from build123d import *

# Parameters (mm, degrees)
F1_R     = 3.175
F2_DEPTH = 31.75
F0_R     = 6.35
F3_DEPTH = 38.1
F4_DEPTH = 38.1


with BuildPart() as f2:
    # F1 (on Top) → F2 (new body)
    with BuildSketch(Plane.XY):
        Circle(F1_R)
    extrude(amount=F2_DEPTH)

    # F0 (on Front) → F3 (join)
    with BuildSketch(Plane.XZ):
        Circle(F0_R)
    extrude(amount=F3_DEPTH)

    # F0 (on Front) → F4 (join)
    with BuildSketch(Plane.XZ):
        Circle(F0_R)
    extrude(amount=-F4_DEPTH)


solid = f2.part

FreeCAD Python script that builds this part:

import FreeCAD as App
import Part
import Sketcher
from FreeCAD import Vector
Q = App.Units.Quantity

doc = App.newDocument("Part")
body = doc.addObject("PartDesign::Body", "Body")

sketch1 = doc.addObject("Sketcher::SketchObject", "Sketch")
body.addObject(sketch1)
sketch1.AttachmentSupport = (doc.XY_Plane, [""])
sketch1.MapMode = "FlatFace"
sketch1.addGeometry(Part.Circle(Vector(0, 0, 0), Vector(0, 0, 1), 3.2), False)
sketch1.addConstraint([
    Sketcher.Constraint("Coincident", 0, 3, -1, 1),
    Sketcher.Constraint("Diameter", 0, Q("0.25 in")),
])
pad1 = doc.addObject("PartDesign::Pad", "Pad")
body.addObject(pad1)
pad1.Profile = sketch1
pad1.Length = Q("1.25 in")

sketch2 = doc.addObject("Sketcher::SketchObject", "Sketch001")
body.addObject(sketch2)
sketch2.AttachmentSupport = (doc.XZ_Plane, [""])
sketch2.MapMode = "FlatFace"
sketch2.addGeometry(Part.Circle(Vector(0, 0, 0), Vector(0, 0, 1), 6), False)
sketch2.addConstraint([
    Sketcher.Constraint("Coincident", 0, 3, -1, 1),
    Sketcher.Constraint("Diameter", 0, Q("0.5 in")),
])
pad2 = doc.addObject("PartDesign::Pad", "Pad001")
body.addObject(pad2)
pad2.Profile = sketch2
pad2.Length = Q("1.5 in")

sketch3 = doc.addObject("Sketcher::SketchObject", "Sketch002")
body.addObject(sketch3)
sketch3.AttachmentSupport = (doc.XZ_Plane, [""])
sketch3.MapMode = "FlatFace"
sketch3.addGeometry(Part.Circle(Vector(0, 0, 0), Vector(0, 0, 1), 6), False)
sketch3.addConstraint([
    Sketcher.Constraint("Coincident", 0, 3, -1, 1),
    Sketcher.Constraint("Diameter", 0, Q("0.5 in")),
])
pad3 = doc.addObject("PartDesign::Pad", "Pad002")
body.addObject(pad3)
pad3.Profile = sketch3
pad3.Length = Q("1.5 in")
pad3.Reversed = True

doc.recompute()
